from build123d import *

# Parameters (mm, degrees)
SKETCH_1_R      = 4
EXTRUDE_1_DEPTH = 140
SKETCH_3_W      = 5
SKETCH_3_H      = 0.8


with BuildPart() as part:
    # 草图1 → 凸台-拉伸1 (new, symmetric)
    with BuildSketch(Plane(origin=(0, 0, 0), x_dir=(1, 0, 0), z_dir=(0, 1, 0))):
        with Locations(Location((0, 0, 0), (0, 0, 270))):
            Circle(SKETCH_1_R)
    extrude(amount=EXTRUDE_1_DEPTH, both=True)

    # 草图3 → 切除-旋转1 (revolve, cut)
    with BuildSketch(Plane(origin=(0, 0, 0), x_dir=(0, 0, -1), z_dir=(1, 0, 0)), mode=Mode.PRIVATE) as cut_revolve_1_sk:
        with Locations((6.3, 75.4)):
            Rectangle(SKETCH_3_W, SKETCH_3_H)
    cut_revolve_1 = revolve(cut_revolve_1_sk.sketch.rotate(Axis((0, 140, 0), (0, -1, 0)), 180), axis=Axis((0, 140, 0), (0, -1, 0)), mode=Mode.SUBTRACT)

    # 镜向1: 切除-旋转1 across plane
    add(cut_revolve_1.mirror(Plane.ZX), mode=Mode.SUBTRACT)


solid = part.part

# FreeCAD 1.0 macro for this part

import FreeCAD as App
import Part
import Sketcher
from FreeCAD import Vector

doc = App.newDocument("Part")
body = doc.addObject("PartDesign::Body", "Body")

# Sketch on XZ plane
sketch1 = doc.addObject("Sketcher::SketchObject", "Sketch")
body.addObject(sketch1)
sketch1.AttachmentSupport = (doc.XZ_Plane, [""])
sketch1.MapMode = "FlatFace"
sketch1.addGeometry(Part.Circle(Vector(0, 0, 0), Vector(0, 0, 1), 4), False)
sketch1.addConstraint(Sketcher.Constraint("Coincident", 0, 3, -1, 1))
sketch1.addConstraint(Sketcher.Constraint("Diameter", 0, 8.0))
pad1 = doc.addObject("PartDesign::Pad", "Pad")
body.addObject(pad1)
pad1.Profile = sketch1
pad1.Length = 280
pad1.Midplane = True

# Sketch on YZ plane
sketch2 = doc.addObject("Sketcher::SketchObject", "Sketch001")
body.addObject(sketch2)
sketch2.AttachmentSupport = (doc.YZ_Plane, [""])
sketch2.MapMode = "FlatFace"
sketch2.addGeometry(Part.LineSegment(Vector(75.8, -3.8, 0), Vector(75, -3.8, 0)), False)
sketch2.addGeometry(Part.LineSegment(Vector(75, -3.8, 0), Vector(75, -8.8, 0)), False)
sketch2.addGeometry(Part.LineSegment(Vector(75, -8.8, 0), Vector(75.8, -8.8, 0)), False)
sketch2.addGeometry(Part.LineSegment(Vector(75.8, -8.8, 0), Vector(75.8, -3.8, 0)), False)
sketch2.addConstraint(Sketcher.Constraint("Coincident", 0, 2, 1, 1))
sketch2.addConstraint(Sketcher.Constraint("Coincident", 1, 2, 2, 1))
sketch2.addConstraint(Sketcher.Constraint("Coincident", 2, 2, 3, 1))
sketch2.addConstraint(Sketcher.Constraint("Coincident", 3, 2, 0, 1))
sketch2.addConstraint(Sketcher.Constraint("Horizontal", 0))
sketch2.addConstraint(Sketcher.Constraint("Vertical", 1))
sketch2.addConstraint(Sketcher.Constraint("Horizontal", 2))
sketch2.addConstraint(Sketcher.Constraint("Vertical", 3))
sketch2.addConstraint(Sketcher.Constraint("DistanceY", 1, 2, 1, 1, 5.0))
sketch2.addConstraint(Sketcher.Constraint("DistanceX", 0, 2, 0, 1, 0.8))
sketch2.addConstraint(Sketcher.Constraint("DistanceX", -1, 1, 0, 2, 75.0))
sketch2.addConstraint(Sketcher.Constraint("DistanceY", 0, 2, -1, 1, 3.8))
groove = doc.addObject("PartDesign::Groove", "Groove")
body.addObject(groove)
groove.Profile = sketch2
groove.ReferenceAxis = (sketch2, ["H_Axis"])
groove.Angle = 360
doc.recompute()

mirrored = doc.addObject("PartDesign::Mirrored", "Mirrored")
body.addObject(mirrored)
mirrored.Originals = [groove]
mirrored.MirrorPlane = (doc.XZ_Plane, [""])
body.Tip = mirrored

doc.recompute()
